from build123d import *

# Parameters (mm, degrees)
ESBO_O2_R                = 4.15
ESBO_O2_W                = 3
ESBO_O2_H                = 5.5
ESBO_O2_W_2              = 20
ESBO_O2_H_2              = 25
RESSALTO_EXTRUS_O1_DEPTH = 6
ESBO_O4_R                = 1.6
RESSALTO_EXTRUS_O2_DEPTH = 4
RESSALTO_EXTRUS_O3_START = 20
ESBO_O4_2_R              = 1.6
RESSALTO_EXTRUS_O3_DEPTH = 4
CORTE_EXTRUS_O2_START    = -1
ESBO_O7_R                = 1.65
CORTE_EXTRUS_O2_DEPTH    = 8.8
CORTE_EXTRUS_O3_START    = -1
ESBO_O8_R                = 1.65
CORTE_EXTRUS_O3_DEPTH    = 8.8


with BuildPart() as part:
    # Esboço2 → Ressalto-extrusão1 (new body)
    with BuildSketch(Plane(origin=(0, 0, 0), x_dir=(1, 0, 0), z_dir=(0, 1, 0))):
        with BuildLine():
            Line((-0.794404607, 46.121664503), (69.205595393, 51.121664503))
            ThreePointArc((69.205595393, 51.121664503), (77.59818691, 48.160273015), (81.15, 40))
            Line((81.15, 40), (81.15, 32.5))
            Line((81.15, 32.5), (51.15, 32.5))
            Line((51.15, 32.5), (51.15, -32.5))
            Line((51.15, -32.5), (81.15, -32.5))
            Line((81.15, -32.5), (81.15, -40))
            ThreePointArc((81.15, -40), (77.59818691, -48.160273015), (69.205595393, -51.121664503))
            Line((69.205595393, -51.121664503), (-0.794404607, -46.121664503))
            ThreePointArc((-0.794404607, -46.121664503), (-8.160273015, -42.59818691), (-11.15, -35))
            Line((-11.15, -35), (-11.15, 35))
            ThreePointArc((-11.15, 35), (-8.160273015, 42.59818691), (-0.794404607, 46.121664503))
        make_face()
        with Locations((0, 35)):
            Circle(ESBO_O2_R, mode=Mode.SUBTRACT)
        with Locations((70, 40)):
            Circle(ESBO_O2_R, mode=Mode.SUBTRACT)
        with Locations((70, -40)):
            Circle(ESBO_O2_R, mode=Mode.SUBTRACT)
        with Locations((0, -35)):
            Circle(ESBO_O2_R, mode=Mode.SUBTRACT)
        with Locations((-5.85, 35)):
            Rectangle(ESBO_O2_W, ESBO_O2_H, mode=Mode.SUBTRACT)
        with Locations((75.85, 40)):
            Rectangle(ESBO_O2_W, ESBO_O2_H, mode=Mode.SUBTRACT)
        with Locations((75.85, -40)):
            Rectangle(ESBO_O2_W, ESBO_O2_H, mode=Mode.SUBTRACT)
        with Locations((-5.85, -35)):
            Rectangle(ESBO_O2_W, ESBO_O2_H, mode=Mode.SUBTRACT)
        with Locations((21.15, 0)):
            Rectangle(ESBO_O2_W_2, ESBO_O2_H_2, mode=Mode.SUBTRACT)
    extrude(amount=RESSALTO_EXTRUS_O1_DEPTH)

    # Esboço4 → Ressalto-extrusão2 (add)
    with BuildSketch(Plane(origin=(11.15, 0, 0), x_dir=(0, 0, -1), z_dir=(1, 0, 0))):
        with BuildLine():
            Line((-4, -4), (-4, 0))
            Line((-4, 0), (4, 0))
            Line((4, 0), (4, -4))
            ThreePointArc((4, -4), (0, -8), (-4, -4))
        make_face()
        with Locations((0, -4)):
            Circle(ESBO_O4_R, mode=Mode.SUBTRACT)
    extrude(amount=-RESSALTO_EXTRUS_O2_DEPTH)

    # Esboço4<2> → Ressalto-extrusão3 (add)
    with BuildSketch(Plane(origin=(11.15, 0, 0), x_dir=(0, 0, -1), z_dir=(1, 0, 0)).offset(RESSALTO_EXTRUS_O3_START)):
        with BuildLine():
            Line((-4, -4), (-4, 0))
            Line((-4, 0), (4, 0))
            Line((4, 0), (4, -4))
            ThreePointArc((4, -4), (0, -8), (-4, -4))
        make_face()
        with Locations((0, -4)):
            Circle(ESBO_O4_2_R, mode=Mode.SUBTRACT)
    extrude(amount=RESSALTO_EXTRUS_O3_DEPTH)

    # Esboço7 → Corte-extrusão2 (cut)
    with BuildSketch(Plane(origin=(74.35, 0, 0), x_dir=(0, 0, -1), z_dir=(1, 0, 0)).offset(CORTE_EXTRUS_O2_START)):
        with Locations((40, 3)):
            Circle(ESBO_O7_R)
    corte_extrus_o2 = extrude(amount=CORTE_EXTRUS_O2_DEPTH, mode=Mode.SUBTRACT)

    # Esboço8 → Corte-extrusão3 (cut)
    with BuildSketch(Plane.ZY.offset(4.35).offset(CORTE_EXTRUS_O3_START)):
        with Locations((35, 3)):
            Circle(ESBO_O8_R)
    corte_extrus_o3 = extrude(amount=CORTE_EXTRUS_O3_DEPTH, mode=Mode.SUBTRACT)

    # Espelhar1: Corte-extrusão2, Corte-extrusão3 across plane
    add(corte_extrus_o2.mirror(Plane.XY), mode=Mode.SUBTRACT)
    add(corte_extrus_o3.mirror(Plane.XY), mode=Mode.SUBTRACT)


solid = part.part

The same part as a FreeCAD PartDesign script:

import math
import FreeCAD as App
import Part
import Sketcher
from FreeCAD import Vector
Q = App.Units.Quantity


def add_polygon(sketch, points):
    """Adds a closed chain of lines whose ends are joined by coincident constraints."""
    first, n = sketch.GeometryCount, len(points)
    for a, b in zip(points, points[1:] + points[:1]):
        sketch.addGeometry(Part.LineSegment(App.Vector(*a, 0), App.Vector(*b, 0)), False)
    for i in range(n):
        sketch.addConstraint(Sketcher.Constraint("Coincident", first + i, 2, first + (i + 1) % n, 1))

doc = App.newDocument("Part")
body = doc.addObject("PartDesign::Body", "Body")

sketch1 = body.newObject("Sketcher::SketchObject", "Sketch")
sketch1.AttachmentSupport = (doc.getObject("XZ_Plane"), [""])
sketch1.MapMode = "FlatFace"
sketch1.addGeometry(Part.LineSegment(Vector(69.2, -51.1, 0), Vector(-0.8, -46.1, 0)), False)
sketch1.addGeometry(Part.ArcOfCircle(Part.Circle(Vector(0, -35, 0), Vector(0, 0, 1), 11.2), math.radians(180), math.radians(266)), False)
sketch1.addGeometry(Part.LineSegment(Vector(-11.2, -35, 0), Vector(-11.2, 35, 0)), False)
sketch1.addGeometry(Part.ArcOfCircle(Part.Circle(Vector(0, 35, 0), Vector(0, 0, 1), 11.2), math.radians(94), math.radians(180)), False)
sketch1.addGeometry(Part.LineSegment(Vector(-0.8, 46.1, 0), Vector(69.2, 51.1, 0)), False)
sketch1.addGeometry(Part.ArcOfCircle(Part.Circle(Vector(70, 40, 0), Vector(0, 0, 1), 11.2), math.radians(0), math.radians(94)), False)
sketch1.addGeometry(Part.LineSegment(Vector(81.2, 40, 0), Vector(81.2, 32.5, 0)), False)
sketch1.addGeometry(Part.LineSegment(Vector(81.2, 32.5, 0), Vector(51.1, 32.5, 0)), False)
sketch1.addGeometry(Part.LineSegment(Vector(51.1, 32.5, 0), Vector(51.1, -32.5, 0)), False)
sketch1.addGeometry(Part.LineSegment(Vector(51.1, -32.5, 0), Vector(81.2, -32.5, 0)), False)
sketch1.addGeometry(Part.LineSegment(Vector(81.2, -32.5, 0), Vector(81.2, -40, 0)), False)
sketch1.addGeometry(Part.ArcOfCircle(Part.Circle(Vector(70, -40, 0), Vector(0, 0, 1), 11.2), math.radians(-94), math.radians(0)), False)
add_polygon(sketch1, [(74.3, 42.8), (74.3, 37.2), (77.3, 37.2), (77.3, 42.8)])
sketch1.addGeometry(Part.Circle(Vector(70, 40, 0), Vector(0, 0, 1), 4.2), False)
sketch1.addGeometry(Part.Circle(Vector(0, 35, 0), Vector(0, 0, 1), 4.2), False)
add_polygon(sketch1, [(-7.3, 37.8), (-7.3, 32.2), (-4.3, 32.2), (-4.3, 37.8)])
add_polygon(sketch1, [(11.2, 12.5), (11.2, -12.5), (31.1, -12.5), (31.1, 12.5)])
add_polygon(sketch1, [(74.3, -37.2), (74.3, -42.8), (77.3, -42.8), (77.3, -37.2)])
sketch1.addGeometry(Part.Circle(Vector(70, -40, 0), Vector(0, 0, 1), 4.2), False)
sketch1.addGeometry(Part.Circle(Vector(0, -35, 0), Vector(0, 0, 1), 4.2), False)
add_polygon(sketch1, [(-7.3, -32.2), (-7.3, -37.8), (-4.3, -37.8), (-4.3, -32.2)])
sketch1.addConstraint(Sketcher.Constraint("Tangent", 0, 2, 1, 2))
sketch1.addConstraint(Sketcher.Constraint("Tangent", 1, 1, 2, 1))
sketch1.addConstraint(Sketcher.Constraint("Tangent", 2, 2, 3, 2))
sketch1.addConstraint(Sketcher.Constraint("Tangent", 3, 1, 4, 1))
sketch1.addConstraint(Sketcher.Constraint("Tangent", 4, 2, 5, 2))
sketch1.addConstraint(Sketcher.Constraint("Tangent", 5, 1, 6, 1))
sketch1.addConstraint(Sketcher.Constraint("Coincident", 6, 2, 7, 1))
sketch1.addConstraint(Sketcher.Constraint("Coincident", 7, 2, 8, 1))
sketch1.addConstraint(Sketcher.Constraint("Coincident", 8, 2, 9, 1))
sketch1.addConstraint(Sketcher.Constraint("Coincident", 9, 2, 10, 1))
sketch1.addConstraint(Sketcher.Constraint("Tangent", 10, 2, 11, 2))
sketch1.addConstraint(Sketcher.Constraint("Tangent", 11, 1, 0, 1))
sketch1.addConstraint(Sketcher.Constraint("Vertical", 2))
sketch1.addConstraint(Sketcher.Constraint("Vertical", 6))
sketch1.addConstraint(Sketcher.Constraint("Horizontal", 7))
sketch1.addConstraint(Sketcher.Constraint("Vertical", 8))
sketch1.addConstraint(Sketcher.Constraint("Horizontal", 9))
sketch1.addConstraint(Sketcher.Constraint("Vertical", 10))
sketch1.addConstraint(Sketcher.Constraint("Vertical", 12))
sketch1.addConstraint(Sketcher.Constraint("Horizontal", 13))
sketch1.addConstraint(Sketcher.Constraint("Vertical", 14))
sketch1.addConstraint(Sketcher.Constraint("Horizontal", 15))
sketch1.addConstraint(Sketcher.Constraint("Vertical", 18))
sketch1.addConstraint(Sketcher.Constraint("Horizontal", 19))
sketch1.addConstraint(Sketcher.Constraint("Vertical", 20))
sketch1.addConstraint(Sketcher.Constraint("Horizontal", 21))
sketch1.addConstraint(Sketcher.Constraint("Vertical", 22))
sketch1.addConstraint(Sketcher.Constraint("Horizontal", 23))
sketch1.addConstraint(Sketcher.Constraint("Vertical", 24))
sketch1.addConstraint(Sketcher.Constraint("Horizontal", 25))
sketch1.addConstraint(Sketcher.Constraint("Vertical", 26))
sketch1.addConstraint(Sketcher.Constraint("Horizontal", 27))
sketch1.addConstraint(Sketcher.Constraint("Vertical", 28))
sketch1.addConstraint(Sketcher.Constraint("Horizontal", 29))
sketch1.addConstraint(Sketcher.Constraint("Vertical", 32))
sketch1.addConstraint(Sketcher.Constraint("Horizontal", 33))
sketch1.addConstraint(Sketcher.Constraint("Vertical", 34))
sketch1.addConstraint(Sketcher.Constraint("Horizontal", 35))
sketch1.addConstraint(Sketcher.Constraint("Coincident", 16, 3, 5, 3))
sketch1.addConstraint(Sketcher.Constraint("Coincident", 17, 3, 3, 3))
sketch1.addConstraint(Sketcher.Constraint("Coincident", 30, 3, 11, 3))
sketch1.addConstraint(Sketcher.Constraint("Coincident", 31, 3, 1, 3))
sketch1.addConstraint(Sketcher.Constraint("Equal", 1, 3))
sketch1.addConstraint(Sketcher.Constraint("Equal", 3, 5))
sketch1.addConstraint(Sketcher.Constraint("Equal", 5, 11))
sketch1.addConstraint(Sketcher.Constraint("Equal", 16, 17))
sketch1.addConstraint(Sketcher.Constraint("Equal", 17, 30))
sketch1.addConstraint(Sketcher.Constraint("Equal", 30, 31))
sketch1.addConstraint(Sketcher.Constraint("Symmetric", 1, 3, 3, 3, -1, 1))
sketch1.addConstraint(Sketcher.Constraint("Symmetric", 5, 3, 11, 3, -1))
sketch1.addConstraint(Sketcher.Constraint("Symmetric", 15, 2, 26, 2, -1))
sketch1.addConstraint(Sketcher.Constraint("Symmetric", 13, 2, 28, 2, -1))
sketch1.addConstraint(Sketcher.Constraint("Symmetric", 21, 2, 32, 2, -1))
sketch1.addConstraint(Sketcher.Constraint("Symmetric", 19, 2, 34, 2, -1))
sketch1.addConstraint(Sketcher.Constraint("Equal", 15, 19))
sketch1.addConstraint(Sketcher.Constraint("Equal", 6, 10))
sketch1.addConstraint(Sketcher.Constraint("Equal", 14, 18))
sketch1.addConstraint(Sketcher.Constraint("Diameter", 16, Q("8.3 mm")))
sketch1.addConstraint(Sketcher.Constraint("DistanceX", 7, 2, 7, 1, Q("30 mm")))
sketch1.addConstraint(Sketcher.Constraint("DistanceX", 13, 1, 13, 2, Q("3 mm")))
sketch1.addConstraint(Sketcher.Constraint("DistanceX", 23, 1, 23, 2, Q("20 mm")))
sketch1.addConstraint(Sketcher.Constraint("DistanceY", 2, 1, 2, 2, Q("70 mm")))
sketch1.addConstraint(Sketcher.Constraint("DistanceY", 8, 2, 8, 1, Q("65 mm")))
sketch1.addConstraint(Sketcher.Constraint("DistanceY", 22, 2, 22, 1, Q("25 mm")))
sketch1.addConstraint(Sketcher.Constraint("Radius", 1, Q("11.15 mm")))
sketch1.addConstraint(Sketcher.Constraint("DistanceY", 6, 2, 6, 1, Q("7.5 mm")))
sketch1.addConstraint(Sketcher.Constraint("DistanceY", 12, 2, 12, 1, Q("5.5 mm")))
sketch1.addConstraint(Sketcher.Constraint("DistanceX", -1, 1, 5, 3, Q("70 mm")))
sketch1.addConstraint(Sketcher.Constraint("DistanceX", 22, 2, 8, 2, Q("40 mm")))
sketch1.addConstraint(Sketcher.Constraint("DistanceY", 8, 2, 22, 2, Q("20 mm")))
sketch1.addConstraint(Sketcher.Constraint("DistanceX", 12, 2, 5, 1, Q("6.8 mm")))
sketch1.addConstraint(Sketcher.Constraint("DistanceX", 2, 2, 18, 2, Q("3.8 mm")))
sketch1.addConstraint(Sketcher.Constraint("DistanceY", -1, 1, 12, 2, Q("37.25 mm")))
sketch1.addConstraint(Sketcher.Constraint("DistanceY", -1, 1, 18, 2, Q("32.25 mm")))
pad1 = body.newObject("PartDesign::Pad", "Pad")
pad1.Profile = sketch1
pad1.Length = 6
pad1.Reversed = True

sketch2 = body.newObject("Sketcher::SketchObject", "Sketch001")
sketch2.AttachmentSupport = (doc.getObject("YZ_Plane"), [""])
sketch2.MapMode = "FlatFace"
sketch2.AttachmentOffset = App.Placement(Vector(0, 0, 11.15), App.Rotation())
sketch2.addGeometry(Part.LineSegment(Vector(0, 4, 0), Vector(-4, 4, 0)), False)
sketch2.addGeometry(Part.ArcOfCircle(Part.Circle(Vector(-4, 0, 0), Vector(0, 0, 1), 4), math.radians(90), math.radians(270)), False)
sketch2.addGeometry(Part.LineSegment(Vector(-4, -4, 0), Vector(0, -4, 0)), False)
sketch2.addGeometry(Part.LineSegment(Vector(0, -4, 0), Vector(0, 4, 0)), False)
sketch2.addGeometry(Part.Circle(Vector(-4, 0, 0), Vector(0, 0, 1), 1.6), False)
sketch2.addConstraint(Sketcher.Constraint("Tangent", 0, 2, 1, 1))
sketch2.addConstraint(Sketcher.Constraint("Tangent", 1, 2, 2, 1))
sketch2.addConstraint(Sketcher.Constraint("Coincident", 2, 2, 3, 1))
sketch2.addConstraint(Sketcher.Constraint("Coincident", 3, 2, 0, 1))
sketch2.addConstraint(Sketcher.Constraint("Horizontal", 0))
sketch2.addConstraint(Sketcher.Constraint("Horizontal", 2))
sketch2.addConstraint(Sketcher.Constraint("Vertical", 3))
sketch2.addConstraint(Sketcher.Constraint("Coincident", 4, 3, 1, 3))
sketch2.addConstraint(Sketcher.Constraint("Symmetric", 2, 2, 3, 2, -1, 1))
sketch2.addConstraint(Sketcher.Constraint("Radius", 1, Q("4 mm")))
sketch2.addConstraint(Sketcher.Constraint("Diameter", 4, Q("3.2 mm")))
sketch2.addConstraint(Sketcher.Constraint("DistanceX", 0, 2, 0, 1, Q("4 mm")))
pad2 = body.newObject("PartDesign::Pad", "Pad001")
pad2.Profile = sketch2
pad2.Length = 4
pad2.Reversed = True

sketch3 = body.newObject("Sketcher::SketchObject", "Sketch002")
sketch3.AttachmentSupport = (doc.getObject("YZ_Plane"), [""])
sketch3.MapMode = "FlatFace"
sketch3.AttachmentOffset = App.Placement(Vector(0, 0, 31.15), App.Rotation())
sketch3.addGeometry(Part.LineSegment(Vector(0, 4, 0), Vector(-4, 4, 0)), False)
sketch3.addGeometry(Part.ArcOfCircle(Part.Circle(Vector(-4, 0, 0), Vector(0, 0, 1), 4), math.radians(90), math.radians(270)), False)
sketch3.addGeometry(Part.LineSegment(Vector(-4, -4, 0), Vector(0, -4, 0)), False)
sketch3.addGeometry(Part.LineSegment(Vector(0, -4, 0), Vector(0, 4, 0)), False)
sketch3.addGeometry(Part.Circle(Vector(-4, 0, 0), Vector(0, 0, 1), 1.6), False)
sketch3.addConstraint(Sketcher.Constraint("Tangent", 0, 2, 1, 1))
sketch3.addConstraint(Sketcher.Constraint("Tangent", 1, 2, 2, 1))
sketch3.addConstraint(Sketcher.Constraint("Coincident", 2, 2, 3, 1))
sketch3.addConstraint(Sketcher.Constraint("Coincident", 3, 2, 0, 1))
sketch3.addConstraint(Sketcher.Constraint("Horizontal", 0))
sketch3.addConstraint(Sketcher.Constraint("Horizontal", 2))
sketch3.addConstraint(Sketcher.Constraint("Vertical", 3))
sketch3.addConstraint(Sketcher.Constraint("Coincident", 4, 3, 1, 3))
sketch3.addConstraint(Sketcher.Constraint("Symmetric", 2, 2, 3, 2, -1, 1))
sketch3.addConstraint(Sketcher.Constraint("Radius", 1, Q("4 mm")))
sketch3.addConstraint(Sketcher.Constraint("Diameter", 4, Q("3.2 mm")))
sketch3.addConstraint(Sketcher.Constraint("DistanceX", 0, 2, 0, 1, Q("4 mm")))
pad3 = body.newObject("PartDesign::Pad", "Pad002")
pad3.Profile = sketch3
pad3.Length = 4

sketch4 = body.newObject("Sketcher::SketchObject", "Sketch003")
sketch4.AttachmentSupport = (doc.getObject("YZ_Plane"), [""])
sketch4.MapMode = "FlatFace"
sketch4.AttachmentOffset = App.Placement(Vector(0, 0, 73.35), App.Rotation())
sketch4.addGeometry(Part.Circle(Vector(3, -40, 0), Vector(0, 0, 1), 1.6), False)
sketch4.addConstraint(Sketcher.Constraint("Diameter", 0, Q("3.3 mm")))
sketch4.addConstraint(Sketcher.Constraint("DistanceX", -1, 1, 0, 3, Q("3 mm")))
sketch4.addConstraint(Sketcher.Constraint("DistanceY", 0, 3, -1, 1, Q("40 mm")))
pocket1 = body.newObject("PartDesign::Pocket", "Pocket")
pocket1.Profile = sketch4
pocket1.Length = 8.8
pocket1.Reversed = True

sketch5 = body.newObject("Sketcher::SketchObject", "Sketch004")
sketch5.AttachmentSupport = (doc.getObject("YZ_Plane"), [""])
sketch5.MapMode = "FlatFace"
sketch5.AttachmentOffset = App.Placement(Vector(0, 0, -3.35), App.Rotation())
sketch5.addGeometry(Part.Circle(Vector(3, 35, 0), Vector(0, 0, 1), 1.6), False)
sketch5.addConstraint(Sketcher.Constraint("Diameter", 0, Q("3.3 mm")))
sketch5.addConstraint(Sketcher.Constraint("DistanceX", -1, 1, 0, 3, Q("3 mm")))
sketch5.addConstraint(Sketcher.Constraint("DistanceY", -1, 1, 0, 3, Q("35 mm")))
pocket2 = body.newObject("PartDesign::Pocket", "Pocket001")
pocket2.Profile = sketch5
pocket2.Length = 8.8
doc.recompute()

mirrored = body.newObject("PartDesign::Mirrored", "Mirrored")
mirrored.Originals = [pocket1, pocket2]
mirrored.MirrorPlane = (doc.getObject("XY_Plane"), [""])
body.Tip = mirrored

doc.recompute()
